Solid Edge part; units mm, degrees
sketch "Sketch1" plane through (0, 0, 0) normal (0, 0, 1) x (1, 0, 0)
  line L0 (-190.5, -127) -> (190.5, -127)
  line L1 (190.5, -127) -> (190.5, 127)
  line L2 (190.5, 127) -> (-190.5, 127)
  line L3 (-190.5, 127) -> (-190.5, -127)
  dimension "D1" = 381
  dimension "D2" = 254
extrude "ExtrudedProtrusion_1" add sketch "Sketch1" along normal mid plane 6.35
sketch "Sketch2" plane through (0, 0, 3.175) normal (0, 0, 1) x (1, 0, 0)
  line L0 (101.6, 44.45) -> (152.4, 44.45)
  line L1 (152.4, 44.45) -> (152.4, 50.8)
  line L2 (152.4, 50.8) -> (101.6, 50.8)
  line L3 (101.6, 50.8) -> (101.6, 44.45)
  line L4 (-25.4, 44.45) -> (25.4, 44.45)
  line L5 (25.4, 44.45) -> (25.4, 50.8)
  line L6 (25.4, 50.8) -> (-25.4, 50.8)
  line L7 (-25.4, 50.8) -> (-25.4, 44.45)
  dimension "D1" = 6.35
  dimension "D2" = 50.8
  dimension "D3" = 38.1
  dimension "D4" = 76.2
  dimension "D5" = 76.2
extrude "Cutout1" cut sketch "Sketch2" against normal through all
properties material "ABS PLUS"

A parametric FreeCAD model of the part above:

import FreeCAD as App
import Part
import Sketcher
from FreeCAD import Vector
Q = App.Units.Quantity


def add_polygon(sketch, points):
    """Adds a closed chain of lines whose ends are joined by coincident constraints."""
    first, n = sketch.GeometryCount, len(points)
    for a, b in zip(points, points[1:] + points[:1]):
        sketch.addGeometry(Part.LineSegment(App.Vector(*a, 0), App.Vector(*b, 0)), False)
    for i in range(n):
        sketch.addConstraint(Sketcher.Constraint("Coincident", first + i, 2, first + (i + 1) % n, 1))

doc = App.newDocument("Part")
params = doc.addObject("Spreadsheet::Sheet", "Params")
for row, (alias, value) in enumerate([
    ("sketch1_height", "10 in"),
    ("pad1_length", "0.25 in"),
    ("sketch2_height", "0.25 in"),
], start=1):
    params.set(f"A{row}", alias)
    params.set(f"B{row}", "=" + value)
    params.setAlias(f"B{row}", alias)

body = doc.addObject("PartDesign::Body", "Body")

# Sketch on XY plane
sketch1 = body.newObject("Sketcher::SketchObject", "Sketch")
sketch1.AttachmentSupport = (doc.getObject("XY_Plane"), [""])
sketch1.MapMode = "FlatFace"
add_polygon(sketch1, [(-190, 127), (-190, -127), (190, -127), (190, 127)])  # lines 0-3
sketch1.addConstraint([
    Sketcher.Constraint("Vertical", 0),
    Sketcher.Constraint("Horizontal", 1),
    Sketcher.Constraint("Vertical", 2),
    Sketcher.Constraint("Horizontal", 3),
    Sketcher.Constraint("Symmetric", 0, 2, 2, 2, -1, 1),
    Sketcher.Constraint("DistanceX", 0, 2, -1, 1, Q("7.5 in")),
    Sketcher.Constraint("DistanceY", 0, 2, 0, 1, Q("10 in")),
])
sketch1.setExpression("Constraints[10]", "Params.sketch1_height")
pad1 = body.newObject("PartDesign::Pad", "Pad")
pad1.Profile = sketch1
pad1.setExpression("Length", "Params.pad1_length")
pad1.Midplane = True

# Sketch on XY plane
sketch2 = body.newObject("Sketcher::SketchObject", "Sketch001")
sketch2.AttachmentSupport = (doc.getObject("XY_Plane"), [""])
sketch2.MapMode = "FlatFace"
sketch2.AttachmentOffset = App.Placement(Vector(0, 0, 0.125 * 25.4), App.Rotation())
add_polygon(sketch2, [(102, 51), (102, 44), (152, 44), (152, 51)])  # lines 0-3
add_polygon(sketch2, [(-25, 51), (-25, 44), (25, 44), (25, 51)])  # lines 4-7
sketch2.addConstraint([
    Sketcher.Constraint("Vertical", 0),
    Sketcher.Constraint("Horizontal", 1),
    Sketcher.Constraint("Vertical", 2),
    Sketcher.Constraint("Horizontal", 3),
    Sketcher.Constraint("Vertical", 4),
    Sketcher.Constraint("Horizontal", 5),
    Sketcher.Constraint("Vertical", 6),
    Sketcher.Constraint("Horizontal", 7),
    Sketcher.Constraint("Horizontal", 1, 2, 4, 2),
    Sketcher.Constraint("Horizontal", 3, 2, 6, 2),
    Sketcher.Constraint("Equal", 3, 5),
    Sketcher.Constraint("DistanceX", 4, 2, -1, 1, Q("1 in")),
    Sketcher.Constraint("DistanceX", -1, 1, 5, 2, Q("1 in")),
    Sketcher.Constraint("DistanceX", -1, 1, 0, 2, Q("4 in")),
    Sketcher.Constraint("DistanceY", -1, 1, 2, 2, Q("2 in")),
    Sketcher.Constraint("DistanceY", 0, 2, 0, 1, Q("0.25 in")),
])
sketch2.setExpression("Constraints[23]", "Params.sketch2_height")
pocket1 = body.newObject("PartDesign::Pocket", "Pocket")
pocket1.Profile = sketch2
pocket1.Type = "ThroughAll"

doc.recompute()
